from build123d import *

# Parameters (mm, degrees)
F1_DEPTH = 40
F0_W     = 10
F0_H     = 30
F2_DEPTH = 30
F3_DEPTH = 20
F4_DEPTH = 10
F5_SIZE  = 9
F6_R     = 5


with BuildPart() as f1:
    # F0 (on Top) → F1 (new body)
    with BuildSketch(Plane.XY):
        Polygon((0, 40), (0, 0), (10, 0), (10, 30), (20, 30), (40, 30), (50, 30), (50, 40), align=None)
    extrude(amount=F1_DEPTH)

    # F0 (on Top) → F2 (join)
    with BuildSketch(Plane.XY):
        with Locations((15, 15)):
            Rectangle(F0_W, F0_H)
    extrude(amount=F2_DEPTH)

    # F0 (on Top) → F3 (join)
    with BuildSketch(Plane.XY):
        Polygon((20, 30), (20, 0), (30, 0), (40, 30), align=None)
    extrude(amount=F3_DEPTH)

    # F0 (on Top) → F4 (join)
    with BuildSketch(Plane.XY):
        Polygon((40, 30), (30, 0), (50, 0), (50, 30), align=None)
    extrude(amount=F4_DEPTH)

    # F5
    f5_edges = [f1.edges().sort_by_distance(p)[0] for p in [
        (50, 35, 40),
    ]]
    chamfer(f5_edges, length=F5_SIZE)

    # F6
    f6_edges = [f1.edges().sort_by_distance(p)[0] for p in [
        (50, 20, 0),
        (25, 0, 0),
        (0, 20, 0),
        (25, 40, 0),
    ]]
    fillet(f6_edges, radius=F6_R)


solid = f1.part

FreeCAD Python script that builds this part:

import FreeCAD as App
import Part
import Sketcher

V = App.Vector


def edges_at(feature, points):
    """Names of the edges that pass closest to the given points."""
    edges = feature.Shape.Edges
    near = lambda p: min(range(len(edges)), key=lambda i: edges[i].distToShape(Part.Vertex(*p))[0])
    return sorted({f"Edge{near(p) + 1}" for p in points})

doc = App.newDocument("Part")
body = doc.addObject("PartDesign::Body", "Body")

# Sketch on XY plane
sketch1 = body.newObject("Sketcher::SketchObject", "Sketch")
sketch1.AttachmentSupport = (doc.getObject("XY_Plane"), [""])
sketch1.MapMode = "FlatFace"
sketch1.addGeometry(Part.LineSegment(V(0, 40, 0), V(0, 0, 0)), False)
sketch1.addGeometry(Part.LineSegment(V(0, 0, 0), V(10, 0, 0)), False)
sketch1.addGeometry(Part.LineSegment(V(10, 0, 0), V(10, 30, 0)), False)
sketch1.addGeometry(Part.LineSegment(V(10, 30, 0), V(50, 30, 0)), False)
sketch1.addGeometry(Part.LineSegment(V(50, 30, 0), V(50, 40, 0)), False)
sketch1.addGeometry(Part.LineSegment(V(50, 40, 0), V(0, 40, 0)), False)
sketch1.addConstraint(Sketcher.Constraint("Coincident", 0, 2, 1, 1))
sketch1.addConstraint(Sketcher.Constraint("Coincident", 1, 2, 2, 1))
sketch1.addConstraint(Sketcher.Constraint("Coincident", 2, 2, 3, 1))
sketch1.addConstraint(Sketcher.Constraint("Coincident", 3, 2, 4, 1))
sketch1.addConstraint(Sketcher.Constraint("Coincident", 4, 2, 5, 1))
sketch1.addConstraint(Sketcher.Constraint("Coincident", 5, 2, 0, 1))
sketch1.addConstraint(Sketcher.Constraint("Vertical", 0))
sketch1.addConstraint(Sketcher.Constraint("Horizontal", 1))
sketch1.addConstraint(Sketcher.Constraint("Vertical", 2))
sketch1.addConstraint(Sketcher.Constraint("Horizontal", 3))
sketch1.addConstraint(Sketcher.Constraint("Vertical", 4))
sketch1.addConstraint(Sketcher.Constraint("Horizontal", 5))
sketch1.addConstraint(Sketcher.Constraint("Coincident", 0, 2, -1, 1))
sketch1.addConstraint(Sketcher.Constraint("Equal", 3, 0))
sketch1.addConstraint(Sketcher.Constraint("Equal", 1, 4))
sketch1.addConstraint(Sketcher.Constraint("DistanceX", 1, 1, 1, 2, 10.0))
sketch1.addConstraint(Sketcher.Constraint("DistanceX", 3, 1, 3, 2, 40.0))
pad1 = body.newObject("PartDesign::Pad", "Pad")
pad1.Profile = sketch1
pad1.Length = 40

# Sketch on XY plane
sketch2 = body.newObject("Sketcher::SketchObject", "Sketch001")
sketch2.AttachmentSupport = (doc.getObject("XY_Plane"), [""])
sketch2.MapMode = "FlatFace"
sketch2.addGeometry(Part.LineSegment(V(10, 30, 0), V(10, 0, 0)), False)
sketch2.addGeometry(Part.LineSegment(V(10, 0, 0), V(20, 0, 0)), False)
sketch2.addGeometry(Part.LineSegment(V(20, 0, 0), V(20, 30, 0)), False)
sketch2.addGeometry(Part.LineSegment(V(20, 30, 0), V(10, 30, 0)), False)
sketch2.addConstraint(Sketcher.Constraint("Coincident", 0, 2, 1, 1))
sketch2.addConstraint(Sketcher.Constraint("Coincident", 1, 2, 2, 1))
sketch2.addConstraint(Sketcher.Constraint("Coincident", 2, 2, 3, 1))
sketch2.addConstraint(Sketcher.Constraint("Coincident", 3, 2, 0, 1))
sketch2.addConstraint(Sketcher.Constraint("Vertical", 0))
sketch2.addConstraint(Sketcher.Constraint("Horizontal", 1))
sketch2.addConstraint(Sketcher.Constraint("Vertical", 2))
sketch2.addConstraint(Sketcher.Constraint("Horizontal", 3))
sketch2.addConstraint(Sketcher.Constraint("PointOnObject", 0, 2, -1))
sketch2.addConstraint(Sketcher.Constraint("DistanceX", 1, 1, 1, 2, 10.0))
sketch2.addConstraint(Sketcher.Constraint("DistanceY", 0, 2, 0, 1, 30.0))
sketch2.addConstraint(Sketcher.Constraint("DistanceX", -1, 1, 0, 2, 10.0))
pad2 = body.newObject("PartDesign::Pad", "Pad001")
pad2.Profile = sketch2
pad2.Length = 30

# Sketch on XY plane
sketch3 = body.newObject("Sketcher::SketchObject", "Sketch002")
sketch3.AttachmentSupport = (doc.getObject("XY_Plane"), [""])
sketch3.MapMode = "FlatFace"
sketch3.addGeometry(Part.LineSegment(V(20, 30, 0), V(20, 0, 0)), False)
sketch3.addGeometry(Part.LineSegment(V(20, 0, 0), V(30, 0, 0)), False)
sketch3.addGeometry(Part.LineSegment(V(30, 0, 0), V(40, 30, 0)), False)
sketch3.addGeometry(Part.LineSegment(V(40, 30, 0), V(20, 30, 0)), False)
sketch3.addConstraint(Sketcher.Constraint("Coincident", 0, 2, 1, 1))
sketch3.addConstraint(Sketcher.Constraint("Coincident", 1, 2, 2, 1))
sketch3.addConstraint(Sketcher.Constraint("Coincident", 2, 2, 3, 1))
sketch3.addConstraint(Sketcher.Constraint("Coincident", 3, 2, 0, 1))
sketch3.addConstraint(Sketcher.Constraint("Vertical", 0))
sketch3.addConstraint(Sketcher.Constraint("Horizontal", 1))
sketch3.addConstraint(Sketcher.Constraint("Horizontal", 3))
sketch3.addConstraint(Sketcher.Constraint("PointOnObject", 0, 2, -1))
sketch3.addConstraint(Sketcher.Constraint("DistanceX", 1, 1, 1, 2, 10.0))
sketch3.addConstraint(Sketcher.Constraint("DistanceX", 3, 2, 3, 1, 20.0))
sketch3.addConstraint(Sketcher.Constraint("DistanceY", 0, 2, 0, 1, 30.0))
sketch3.addConstraint(Sketcher.Constraint("DistanceX", -1, 1, 0, 2, 20.0))
pad3 = body.newObject("PartDesign::Pad", "Pad002")
pad3.Profile = sketch3
pad3.Length = 20

# Sketch on XY plane
sketch4 = body.newObject("Sketcher::SketchObject", "Sketch003")
sketch4.AttachmentSupport = (doc.getObject("XY_Plane"), [""])
sketch4.MapMode = "FlatFace"
sketch4.addGeometry(Part.LineSegment(V(40, 30, 0), V(30, 0, 0)), False)
sketch4.addGeometry(Part.LineSegment(V(30, 0, 0), V(50, 0, 0)), False)
sketch4.addGeometry(Part.LineSegment(V(50, 0, 0), V(50, 30, 0)), False)
sketch4.addGeometry(Part.LineSegment(V(50, 30, 0), V(40, 30, 0)), False)
sketch4.addConstraint(Sketcher.Constraint("Coincident", 0, 2, 1, 1))
sketch4.addConstraint(Sketcher.Constraint("Coincident", 1, 2, 2, 1))
sketch4.addConstraint(Sketcher.Constraint("Coincident", 2, 2, 3, 1))
sketch4.addConstraint(Sketcher.Constraint("Coincident", 3, 2, 0, 1))
sketch4.addConstraint(Sketcher.Constraint("Horizontal", 1))
sketch4.addConstraint(Sketcher.Constraint("Vertical", 2))
sketch4.addConstraint(Sketcher.Constraint("Horizontal", 3))
sketch4.addConstraint(Sketcher.Constraint("PointOnObject", 0, 2, -1))
sketch4.addConstraint(Sketcher.Constraint("DistanceX", 1, 1, 1, 2, 20.0))
sketch4.addConstraint(Sketcher.Constraint("DistanceX", 3, 2, 3, 1, 10.0))
sketch4.addConstraint(Sketcher.Constraint("DistanceY", 2, 1, 2, 2, 30.0))
sketch4.addConstraint(Sketcher.Constraint("DistanceX", -1, 1, 0, 2, 30.0))
pad4 = body.newObject("PartDesign::Pad", "Pad003")
pad4.Profile = sketch4
pad4.Length = 10
doc.recompute()

chamfer = body.newObject("PartDesign::Chamfer", "Chamfer")
chamfer.Base = (pad4, edges_at(pad4, [(50, 35, 40)]))
chamfer.Size = 9
doc.recompute()

fillet = body.newObject("PartDesign::Fillet", "Fillet")
fillet.Base = (chamfer, edges_at(chamfer, [
    (50, 20, 0),
    (25, 0, 0),
    (0, 20, 0),
    (25, 40, 0),
]))
fillet.Radius = 5

doc.recompute()
